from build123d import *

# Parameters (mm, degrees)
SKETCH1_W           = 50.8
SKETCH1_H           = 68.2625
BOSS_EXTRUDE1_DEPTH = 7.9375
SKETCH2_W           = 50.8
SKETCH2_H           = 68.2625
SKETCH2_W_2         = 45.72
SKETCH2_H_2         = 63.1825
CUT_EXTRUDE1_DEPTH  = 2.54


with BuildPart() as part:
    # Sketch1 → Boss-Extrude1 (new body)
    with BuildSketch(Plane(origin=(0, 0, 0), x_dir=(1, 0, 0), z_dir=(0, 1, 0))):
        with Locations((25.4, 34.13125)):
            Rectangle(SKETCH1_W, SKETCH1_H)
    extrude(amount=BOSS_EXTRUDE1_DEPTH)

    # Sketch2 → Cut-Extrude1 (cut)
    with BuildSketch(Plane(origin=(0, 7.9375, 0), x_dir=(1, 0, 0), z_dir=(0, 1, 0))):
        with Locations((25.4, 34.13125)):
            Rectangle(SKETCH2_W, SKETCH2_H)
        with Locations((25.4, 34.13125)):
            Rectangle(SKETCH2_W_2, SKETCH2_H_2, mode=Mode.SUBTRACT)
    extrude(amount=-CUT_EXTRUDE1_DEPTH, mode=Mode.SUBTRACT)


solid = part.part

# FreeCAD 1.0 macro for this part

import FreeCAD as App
import Part
import Sketcher
Q = App.Units.Quantity

doc = App.newDocument("Part")
params = doc.addObject("Spreadsheet::Sheet", "Params")
for row, (alias, value) in enumerate([
    ("sketch1_width", "2 in"),
    ("sketch1_height", "2.6875 in"),
    ("pad1_length", "0.3125 in"),
    ("sketch2_width", "2 in"),
    ("sketch2_width2", "1.8 in"),
    ("sketch2_height", "2.6875 in"),
    ("pocket1_length", "0.1 in"),
], start=1):
    params.set(f"A{row}", alias)
    params.set(f"B{row}", "=" + value)
    params.setAlias(f"B{row}", alias)

body = doc.addObject("PartDesign::Body", "Body")

# Sketch on XZ plane
sketch1 = body.newObject("Sketcher::SketchObject", "Sketch")
sketch1.AttachmentSupport = (doc.getObject("XZ_Plane"), [""])
sketch1.MapMode = "FlatFace"
sketch1.addGeometry([
    Part.LineSegment(App.Vector(0, -68, 0), App.Vector(0, 0, 0)),
    Part.LineSegment(App.Vector(0, 0, 0), App.Vector(51, 0, 0)),
    Part.LineSegment(App.Vector(51, 0, 0), App.Vector(51, -68, 0)),
    Part.LineSegment(App.Vector(51, -68, 0), App.Vector(0, -68, 0)),
], False)
sketch1.addConstraint([
    Sketcher.Constraint("Coincident", 0, 2, 1, 1),
    Sketcher.Constraint("Coincident", 1, 2, 2, 1),
    Sketcher.Constraint("Coincident", 2, 2, 3, 1),
    Sketcher.Constraint("Coincident", 3, 2, 0, 1),
    Sketcher.Constraint("Vertical", 0),
    Sketcher.Constraint("Horizontal", 1),
    Sketcher.Constraint("Vertical", 2),
    Sketcher.Constraint("Horizontal", 3),
    Sketcher.Constraint("Coincident", 0, 2, -1, 1),
    Sketcher.Constraint("DistanceX", 1, 1, 1, 2, Q("2 in")),
    Sketcher.Constraint("DistanceY", 0, 1, 0, 2, Q("2.6875 in")),
])
sketch1.setExpression("Constraints[9]", "Params.sketch1_width")
sketch1.setExpression("Constraints[10]", "Params.sketch1_height")
pad1 = body.newObject("PartDesign::Pad", "Pad")
pad1.Profile = sketch1
pad1.setExpression("Length", "Params.pad1_length")
pad1.Reversed = True

# Sketch on XZ plane
sketch2 = body.newObject("Sketcher::SketchObject", "Sketch001")
sketch2.AttachmentSupport = (doc.getObject("XZ_Plane"), [""])
sketch2.MapMode = "FlatFace"
sketch2.AttachmentOffset = App.Placement(App.Vector(0, 0, -0.3125 * 25.4), App.Rotation())
sketch2.addGeometry([
    Part.LineSegment(App.Vector(0, -68, 0), App.Vector(0, 0, 0)),  # 0
    Part.LineSegment(App.Vector(0, 0, 0), App.Vector(51, 0, 0)),  # 1
    Part.LineSegment(App.Vector(51, 0, 0), App.Vector(51, -68, 0)),  # 2
    Part.LineSegment(App.Vector(51, -68, 0), App.Vector(0, -68, 0)),  # 3
    Part.LineSegment(App.Vector(48, -3, 0), App.Vector(3, -3, 0)),  # 4
    Part.LineSegment(App.Vector(3, -3, 0), App.Vector(3, -66, 0)),  # 5
    Part.LineSegment(App.Vector(3, -66, 0), App.Vector(48, -66, 0)),  # 6
    Part.LineSegment(App.Vector(48, -66, 0), App.Vector(48, -3, 0)),  # 7
], False)
sketch2.addConstraint([
    Sketcher.Constraint("Coincident", 0, 2, 1, 1),
    Sketcher.Constraint("Coincident", 1, 2, 2, 1),
    Sketcher.Constraint("Coincident", 2, 2, 3, 1),
    Sketcher.Constraint("Coincident", 3, 2, 0, 1),
    Sketcher.Constraint("Coincident", 4, 2, 5, 1),
    Sketcher.Constraint("Coincident", 5, 2, 6, 1),
    Sketcher.Constraint("Coincident", 6, 2, 7, 1),
    Sketcher.Constraint("Coincident", 7, 2, 4, 1),
    Sketcher.Constraint("Vertical", 0),
    Sketcher.Constraint("Horizontal", 1),
    Sketcher.Constraint("Vertical", 2),
    Sketcher.Constraint("Horizontal", 3),
    Sketcher.Constraint("Horizontal", 4),
    Sketcher.Constraint("Vertical", 5),
    Sketcher.Constraint("Horizontal", 6),
    Sketcher.Constraint("Vertical", 7),
    Sketcher.Constraint("Coincident", 0, 2, -1, 1),
    Sketcher.Constraint("DistanceX", 1, 1, 1, 2, Q("2 in")),
    Sketcher.Constraint("DistanceX", 4, 2, 4, 1, Q("1.8 in")),
    Sketcher.Constraint("DistanceX", -1, 1, 4, 2, Q("0.1 in")),
    Sketcher.Constraint("DistanceY", 4, 2, -1, 1, Q("0.1 in")),
    Sketcher.Constraint("DistanceY", 3, 2, 5, 2, Q("0.1 in")),
    Sketcher.Constraint("DistanceY", 0, 1, 0, 2, Q("2.6875 in")),
])
sketch2.setExpression("Constraints[17]", "Params.sketch2_width")
sketch2.setExpression("Constraints[18]", "Params.sketch2_width2")
sketch2.setExpression("Constraints[22]", "Params.sketch2_height")
pocket1 = body.newObject("PartDesign::Pocket", "Pocket")
pocket1.Profile = sketch2
pocket1.setExpression("Length", "Params.pocket1_length")
pocket1.Reversed = True

doc.recompute()
